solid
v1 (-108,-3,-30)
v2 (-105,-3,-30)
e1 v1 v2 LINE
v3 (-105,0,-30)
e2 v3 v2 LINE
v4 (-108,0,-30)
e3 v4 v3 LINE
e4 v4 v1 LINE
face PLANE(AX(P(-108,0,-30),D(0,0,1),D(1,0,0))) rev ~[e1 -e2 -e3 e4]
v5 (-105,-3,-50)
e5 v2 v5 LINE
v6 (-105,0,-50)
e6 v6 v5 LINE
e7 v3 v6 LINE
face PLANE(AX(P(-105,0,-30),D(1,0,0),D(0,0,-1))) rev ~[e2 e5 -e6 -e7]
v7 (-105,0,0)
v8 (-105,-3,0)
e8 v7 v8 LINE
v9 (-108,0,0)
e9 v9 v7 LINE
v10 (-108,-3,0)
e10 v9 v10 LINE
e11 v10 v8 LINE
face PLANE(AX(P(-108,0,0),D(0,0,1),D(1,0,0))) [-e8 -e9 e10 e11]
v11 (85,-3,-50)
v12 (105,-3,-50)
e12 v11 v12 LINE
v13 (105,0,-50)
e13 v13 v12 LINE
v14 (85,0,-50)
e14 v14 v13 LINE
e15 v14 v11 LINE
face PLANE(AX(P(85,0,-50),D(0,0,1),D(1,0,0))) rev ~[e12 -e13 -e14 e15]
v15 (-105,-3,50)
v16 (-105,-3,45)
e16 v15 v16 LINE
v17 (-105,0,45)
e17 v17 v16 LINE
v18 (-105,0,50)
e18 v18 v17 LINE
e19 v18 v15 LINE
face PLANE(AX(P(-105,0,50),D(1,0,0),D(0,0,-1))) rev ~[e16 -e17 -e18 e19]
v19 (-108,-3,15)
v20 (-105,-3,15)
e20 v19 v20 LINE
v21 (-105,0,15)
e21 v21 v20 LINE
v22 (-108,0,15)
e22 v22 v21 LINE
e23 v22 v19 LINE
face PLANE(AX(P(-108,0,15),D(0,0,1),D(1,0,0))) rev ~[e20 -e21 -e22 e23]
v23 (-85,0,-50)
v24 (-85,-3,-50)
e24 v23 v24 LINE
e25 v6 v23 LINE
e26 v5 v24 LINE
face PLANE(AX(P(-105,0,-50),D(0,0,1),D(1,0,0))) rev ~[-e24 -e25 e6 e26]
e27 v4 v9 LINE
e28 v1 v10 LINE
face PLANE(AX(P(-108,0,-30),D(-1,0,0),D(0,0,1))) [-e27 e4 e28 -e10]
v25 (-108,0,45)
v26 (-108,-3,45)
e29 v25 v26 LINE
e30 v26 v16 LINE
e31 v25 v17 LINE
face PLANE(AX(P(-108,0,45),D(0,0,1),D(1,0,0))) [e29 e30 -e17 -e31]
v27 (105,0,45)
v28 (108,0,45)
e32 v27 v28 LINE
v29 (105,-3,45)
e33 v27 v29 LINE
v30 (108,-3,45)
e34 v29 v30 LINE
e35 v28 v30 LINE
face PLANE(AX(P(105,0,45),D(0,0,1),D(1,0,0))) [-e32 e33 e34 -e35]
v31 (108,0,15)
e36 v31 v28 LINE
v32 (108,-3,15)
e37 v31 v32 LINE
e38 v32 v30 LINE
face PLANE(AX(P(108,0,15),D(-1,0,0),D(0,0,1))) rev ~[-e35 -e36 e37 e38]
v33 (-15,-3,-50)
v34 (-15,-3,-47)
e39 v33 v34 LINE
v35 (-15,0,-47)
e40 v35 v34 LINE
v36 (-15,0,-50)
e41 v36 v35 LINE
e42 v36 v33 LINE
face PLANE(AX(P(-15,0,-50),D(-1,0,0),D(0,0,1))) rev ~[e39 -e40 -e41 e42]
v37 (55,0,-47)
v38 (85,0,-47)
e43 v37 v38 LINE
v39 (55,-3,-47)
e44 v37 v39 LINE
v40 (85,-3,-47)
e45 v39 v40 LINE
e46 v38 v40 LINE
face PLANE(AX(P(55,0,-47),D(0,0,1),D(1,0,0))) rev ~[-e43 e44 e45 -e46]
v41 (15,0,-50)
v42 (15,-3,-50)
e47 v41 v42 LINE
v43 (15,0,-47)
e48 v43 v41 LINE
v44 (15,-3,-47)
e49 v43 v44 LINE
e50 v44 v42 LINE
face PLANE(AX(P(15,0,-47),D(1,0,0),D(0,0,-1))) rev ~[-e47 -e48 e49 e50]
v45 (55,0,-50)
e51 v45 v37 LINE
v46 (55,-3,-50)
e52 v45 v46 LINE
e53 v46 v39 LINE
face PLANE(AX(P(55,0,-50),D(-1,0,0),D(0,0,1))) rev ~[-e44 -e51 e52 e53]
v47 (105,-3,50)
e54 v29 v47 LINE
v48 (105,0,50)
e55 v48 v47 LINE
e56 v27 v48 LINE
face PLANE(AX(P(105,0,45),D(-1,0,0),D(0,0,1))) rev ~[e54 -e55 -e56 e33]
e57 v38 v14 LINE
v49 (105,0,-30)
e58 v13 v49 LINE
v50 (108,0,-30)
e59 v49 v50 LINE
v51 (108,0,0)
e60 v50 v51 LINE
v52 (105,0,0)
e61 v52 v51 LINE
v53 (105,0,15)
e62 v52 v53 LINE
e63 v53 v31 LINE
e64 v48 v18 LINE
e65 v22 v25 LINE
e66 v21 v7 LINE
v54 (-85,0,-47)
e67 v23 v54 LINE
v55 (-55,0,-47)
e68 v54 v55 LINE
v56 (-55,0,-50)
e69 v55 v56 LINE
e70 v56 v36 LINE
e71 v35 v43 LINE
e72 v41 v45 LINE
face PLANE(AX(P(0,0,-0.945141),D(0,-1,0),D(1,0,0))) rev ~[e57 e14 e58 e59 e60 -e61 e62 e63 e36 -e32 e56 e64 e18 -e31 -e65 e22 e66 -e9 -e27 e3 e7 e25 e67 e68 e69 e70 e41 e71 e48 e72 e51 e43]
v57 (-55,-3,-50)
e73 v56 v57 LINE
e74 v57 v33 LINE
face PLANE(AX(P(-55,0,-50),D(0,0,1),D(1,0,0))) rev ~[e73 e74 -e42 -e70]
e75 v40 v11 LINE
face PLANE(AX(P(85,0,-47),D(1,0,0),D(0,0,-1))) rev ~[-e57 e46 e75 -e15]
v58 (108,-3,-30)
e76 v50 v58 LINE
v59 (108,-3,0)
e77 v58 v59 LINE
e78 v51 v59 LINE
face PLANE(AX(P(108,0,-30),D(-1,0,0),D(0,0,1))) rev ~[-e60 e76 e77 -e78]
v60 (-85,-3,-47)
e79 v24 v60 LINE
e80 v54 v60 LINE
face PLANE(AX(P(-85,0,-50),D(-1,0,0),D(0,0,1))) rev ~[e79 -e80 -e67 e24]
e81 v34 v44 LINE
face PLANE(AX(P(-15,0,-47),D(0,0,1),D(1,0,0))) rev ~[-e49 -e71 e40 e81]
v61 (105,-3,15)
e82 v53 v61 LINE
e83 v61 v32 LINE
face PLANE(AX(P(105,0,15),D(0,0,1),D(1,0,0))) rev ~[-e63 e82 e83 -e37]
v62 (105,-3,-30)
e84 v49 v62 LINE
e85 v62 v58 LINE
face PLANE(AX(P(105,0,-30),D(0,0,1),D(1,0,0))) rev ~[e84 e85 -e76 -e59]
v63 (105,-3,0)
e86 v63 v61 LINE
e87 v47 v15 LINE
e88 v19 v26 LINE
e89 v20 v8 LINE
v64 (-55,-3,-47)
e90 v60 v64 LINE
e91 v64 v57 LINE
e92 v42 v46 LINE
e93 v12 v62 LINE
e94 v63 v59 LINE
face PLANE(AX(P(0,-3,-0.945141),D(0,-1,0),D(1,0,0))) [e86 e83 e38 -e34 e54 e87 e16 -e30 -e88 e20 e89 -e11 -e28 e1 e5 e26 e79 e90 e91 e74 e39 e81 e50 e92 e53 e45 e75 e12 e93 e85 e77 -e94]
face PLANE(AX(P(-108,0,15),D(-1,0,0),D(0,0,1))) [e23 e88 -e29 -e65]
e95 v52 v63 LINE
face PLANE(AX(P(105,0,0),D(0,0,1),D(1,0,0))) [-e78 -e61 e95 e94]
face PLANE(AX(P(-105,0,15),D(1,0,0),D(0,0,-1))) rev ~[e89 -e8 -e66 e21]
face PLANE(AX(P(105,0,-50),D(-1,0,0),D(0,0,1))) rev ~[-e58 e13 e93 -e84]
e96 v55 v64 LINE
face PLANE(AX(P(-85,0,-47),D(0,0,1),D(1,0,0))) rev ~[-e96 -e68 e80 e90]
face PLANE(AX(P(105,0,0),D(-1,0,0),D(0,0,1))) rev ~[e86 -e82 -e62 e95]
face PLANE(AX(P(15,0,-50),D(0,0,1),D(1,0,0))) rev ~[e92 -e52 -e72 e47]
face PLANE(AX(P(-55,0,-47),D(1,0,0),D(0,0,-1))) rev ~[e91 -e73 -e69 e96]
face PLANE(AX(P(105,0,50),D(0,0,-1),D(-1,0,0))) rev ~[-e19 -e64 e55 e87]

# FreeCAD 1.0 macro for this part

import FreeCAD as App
import Part
import Sketcher
from FreeCAD import Vector


def add_polygon(sketch, points):
    """Adds a closed chain of lines whose ends are joined by coincident constraints."""
    first, n = sketch.GeometryCount, len(points)
    for a, b in zip(points, points[1:] + points[:1]):
        sketch.addGeometry(Part.LineSegment(App.Vector(*a, 0), App.Vector(*b, 0)), False)
    for i in range(n):
        sketch.addConstraint(Sketcher.Constraint("Coincident", first + i, 2, first + (i + 1) % n, 1))

doc = App.newDocument("Part")
params = doc.addObject("Spreadsheet::Sheet", "Params")
for row, (alias, value) in enumerate([
    ("sketch1_width", "210 mm"),
    ("sketch1_width2", "3 mm"),
    ("sketch1_width3", "20 mm"),
    ("sketch1_width4", "30 mm"),
    ("sketch1_height", "5 mm"),
    ("pad1_length", "3 mm"),
], start=1):
    params.set(f"A{row}", alias)
    params.set(f"B{row}", "=" + value)
    params.setAlias(f"B{row}", alias)

body = doc.addObject("PartDesign::Body", "Body")

# Sketch on XZ plane
sketch1 = body.newObject("Sketcher::SketchObject", "Sketch")
sketch1.AttachmentSupport = (doc.getObject("XZ_Plane"), [""])
sketch1.MapMode = "FlatFace"
add_polygon(sketch1, [(105, 50), (-105, 50), (-105, 45), (-108, 45), (-108, 15), (-105, 15), (-105, 0), (-108, 0), (-108, -30), (-105, -30), (-105, -50), (-85, -50), (-85, -47), (-55, -47), (-55, -50), (-15, -50), (-15, -47), (15, -47), (15, -50), (55, -50), (55, -47), (85, -47), (85, -50), (105, -50), (105, -30), (108, -30), (108, 0), (105, 0), (105, 15), (108, 15), (108, 45), (105, 45)])  # lines 0-31
sketch1.addConstraint(Sketcher.Constraint("Horizontal", 0))
sketch1.addConstraint(Sketcher.Constraint("Vertical", 1))
sketch1.addConstraint(Sketcher.Constraint("Horizontal", 2))
sketch1.addConstraint(Sketcher.Constraint("Vertical", 3))
sketch1.addConstraint(Sketcher.Constraint("Horizontal", 4))
sketch1.addConstraint(Sketcher.Constraint("Vertical", 5))
sketch1.addConstraint(Sketcher.Constraint("Horizontal", 6))
sketch1.addConstraint(Sketcher.Constraint("Vertical", 7))
sketch1.addConstraint(Sketcher.Constraint("Horizontal", 8))
sketch1.addConstraint(Sketcher.Constraint("Vertical", 9))
sketch1.addConstraint(Sketcher.Constraint("Horizontal", 10))
sketch1.addConstraint(Sketcher.Constraint("Vertical", 11))
sketch1.addConstraint(Sketcher.Constraint("Horizontal", 12))
sketch1.addConstraint(Sketcher.Constraint("Vertical", 13))
sketch1.addConstraint(Sketcher.Constraint("Horizontal", 14))
sketch1.addConstraint(Sketcher.Constraint("Vertical", 15))
sketch1.addConstraint(Sketcher.Constraint("Horizontal", 16))
sketch1.addConstraint(Sketcher.Constraint("Vertical", 17))
sketch1.addConstraint(Sketcher.Constraint("Horizontal", 18))
sketch1.addConstraint(Sketcher.Constraint("Vertical", 19))
sketch1.addConstraint(Sketcher.Constraint("Horizontal", 20))
sketch1.addConstraint(Sketcher.Constraint("Vertical", 21))
sketch1.addConstraint(Sketcher.Constraint("Horizontal", 22))
sketch1.addConstraint(Sketcher.Constraint("Vertical", 23))
sketch1.addConstraint(Sketcher.Constraint("Horizontal", 24))
sketch1.addConstraint(Sketcher.Constraint("Vertical", 25))
sketch1.addConstraint(Sketcher.Constraint("Horizontal", 26))
sketch1.addConstraint(Sketcher.Constraint("Vertical", 27))
sketch1.addConstraint(Sketcher.Constraint("Horizontal", 28))
sketch1.addConstraint(Sketcher.Constraint("Vertical", 29))
sketch1.addConstraint(Sketcher.Constraint("Horizontal", 30))
sketch1.addConstraint(Sketcher.Constraint("Vertical", 31))
sketch1.addConstraint(Sketcher.Constraint("Symmetric", 0, 2, 22, 2, -1, 1))
sketch1.addConstraint(Sketcher.Constraint("Symmetric", 6, 2, 25, 2, -1, 1))
sketch1.addConstraint(Sketcher.Constraint("Symmetric", 9, 2, 31, 2, -1, 1))
sketch1.addConstraint(Sketcher.Constraint("Symmetric", 14, 2, 17, 2, -2))
sketch1.addConstraint(Sketcher.Constraint("Symmetric", 12, 2, 19, 2, -2))
sketch1.addConstraint(Sketcher.Constraint("Symmetric", 8, 2, 23, 2, -2))
sketch1.addConstraint(Sketcher.Constraint("Symmetric", 5, 2, 26, 2, -2))
sketch1.addConstraint(Sketcher.Constraint("Symmetric", 3, 2, 28, 2, -2))
sketch1.addConstraint(Sketcher.Constraint("Horizontal", 10, 2, 13, 2))
sketch1.addConstraint(Sketcher.Constraint("Horizontal", 12, 2, 15, 2))
sketch1.addConstraint(Sketcher.Constraint("Horizontal", 2, 2, 29, 2))
sketch1.addConstraint(Sketcher.Constraint("Vertical", 1, 2, 4, 2))
sketch1.addConstraint(Sketcher.Constraint("Vertical", 3, 2, 6, 2))
sketch1.addConstraint(Sketcher.Constraint("Equal", 12, 16))
sketch1.addConstraint(Sketcher.Constraint("Equal", 16, 20))
sketch1.addConstraint(Sketcher.Constraint("Equal", 20, 3))
sketch1.addConstraint(Sketcher.Constraint("Equal", 3, 7))
sketch1.addConstraint(Sketcher.Constraint("Equal", 22, 9))
sketch1.addConstraint(Sketcher.Constraint("Equal", 30, 11))
sketch1.addConstraint(Sketcher.Constraint("DistanceX", 0, 2, 0, 1, 210.0))
sketch1.addConstraint(Sketcher.Constraint("DistanceX", 2, 2, 2, 1, 3.0))
sketch1.addConstraint(Sketcher.Constraint("DistanceX", 10, 1, 10, 2, 20.0))
sketch1.addConstraint(Sketcher.Constraint("DistanceX", 12, 1, 12, 2, 30.0))
sketch1.addConstraint(Sketcher.Constraint("DistanceY", 1, 2, 1, 1, 5.0))
sketch1.setExpression("Constraints[83]", "Params.sketch1_width")
sketch1.setExpression("Constraints[84]", "Params.sketch1_width2")
sketch1.setExpression("Constraints[85]", "Params.sketch1_width3")
sketch1.setExpression("Constraints[86]", "Params.sketch1_width4")
sketch1.setExpression("Constraints[87]", "Params.sketch1_height")
pad1 = body.newObject("PartDesign::Pad", "Pad")
pad1.Profile = sketch1
pad1.setExpression("Length", "Params.pad1_length")

doc.recompute()
